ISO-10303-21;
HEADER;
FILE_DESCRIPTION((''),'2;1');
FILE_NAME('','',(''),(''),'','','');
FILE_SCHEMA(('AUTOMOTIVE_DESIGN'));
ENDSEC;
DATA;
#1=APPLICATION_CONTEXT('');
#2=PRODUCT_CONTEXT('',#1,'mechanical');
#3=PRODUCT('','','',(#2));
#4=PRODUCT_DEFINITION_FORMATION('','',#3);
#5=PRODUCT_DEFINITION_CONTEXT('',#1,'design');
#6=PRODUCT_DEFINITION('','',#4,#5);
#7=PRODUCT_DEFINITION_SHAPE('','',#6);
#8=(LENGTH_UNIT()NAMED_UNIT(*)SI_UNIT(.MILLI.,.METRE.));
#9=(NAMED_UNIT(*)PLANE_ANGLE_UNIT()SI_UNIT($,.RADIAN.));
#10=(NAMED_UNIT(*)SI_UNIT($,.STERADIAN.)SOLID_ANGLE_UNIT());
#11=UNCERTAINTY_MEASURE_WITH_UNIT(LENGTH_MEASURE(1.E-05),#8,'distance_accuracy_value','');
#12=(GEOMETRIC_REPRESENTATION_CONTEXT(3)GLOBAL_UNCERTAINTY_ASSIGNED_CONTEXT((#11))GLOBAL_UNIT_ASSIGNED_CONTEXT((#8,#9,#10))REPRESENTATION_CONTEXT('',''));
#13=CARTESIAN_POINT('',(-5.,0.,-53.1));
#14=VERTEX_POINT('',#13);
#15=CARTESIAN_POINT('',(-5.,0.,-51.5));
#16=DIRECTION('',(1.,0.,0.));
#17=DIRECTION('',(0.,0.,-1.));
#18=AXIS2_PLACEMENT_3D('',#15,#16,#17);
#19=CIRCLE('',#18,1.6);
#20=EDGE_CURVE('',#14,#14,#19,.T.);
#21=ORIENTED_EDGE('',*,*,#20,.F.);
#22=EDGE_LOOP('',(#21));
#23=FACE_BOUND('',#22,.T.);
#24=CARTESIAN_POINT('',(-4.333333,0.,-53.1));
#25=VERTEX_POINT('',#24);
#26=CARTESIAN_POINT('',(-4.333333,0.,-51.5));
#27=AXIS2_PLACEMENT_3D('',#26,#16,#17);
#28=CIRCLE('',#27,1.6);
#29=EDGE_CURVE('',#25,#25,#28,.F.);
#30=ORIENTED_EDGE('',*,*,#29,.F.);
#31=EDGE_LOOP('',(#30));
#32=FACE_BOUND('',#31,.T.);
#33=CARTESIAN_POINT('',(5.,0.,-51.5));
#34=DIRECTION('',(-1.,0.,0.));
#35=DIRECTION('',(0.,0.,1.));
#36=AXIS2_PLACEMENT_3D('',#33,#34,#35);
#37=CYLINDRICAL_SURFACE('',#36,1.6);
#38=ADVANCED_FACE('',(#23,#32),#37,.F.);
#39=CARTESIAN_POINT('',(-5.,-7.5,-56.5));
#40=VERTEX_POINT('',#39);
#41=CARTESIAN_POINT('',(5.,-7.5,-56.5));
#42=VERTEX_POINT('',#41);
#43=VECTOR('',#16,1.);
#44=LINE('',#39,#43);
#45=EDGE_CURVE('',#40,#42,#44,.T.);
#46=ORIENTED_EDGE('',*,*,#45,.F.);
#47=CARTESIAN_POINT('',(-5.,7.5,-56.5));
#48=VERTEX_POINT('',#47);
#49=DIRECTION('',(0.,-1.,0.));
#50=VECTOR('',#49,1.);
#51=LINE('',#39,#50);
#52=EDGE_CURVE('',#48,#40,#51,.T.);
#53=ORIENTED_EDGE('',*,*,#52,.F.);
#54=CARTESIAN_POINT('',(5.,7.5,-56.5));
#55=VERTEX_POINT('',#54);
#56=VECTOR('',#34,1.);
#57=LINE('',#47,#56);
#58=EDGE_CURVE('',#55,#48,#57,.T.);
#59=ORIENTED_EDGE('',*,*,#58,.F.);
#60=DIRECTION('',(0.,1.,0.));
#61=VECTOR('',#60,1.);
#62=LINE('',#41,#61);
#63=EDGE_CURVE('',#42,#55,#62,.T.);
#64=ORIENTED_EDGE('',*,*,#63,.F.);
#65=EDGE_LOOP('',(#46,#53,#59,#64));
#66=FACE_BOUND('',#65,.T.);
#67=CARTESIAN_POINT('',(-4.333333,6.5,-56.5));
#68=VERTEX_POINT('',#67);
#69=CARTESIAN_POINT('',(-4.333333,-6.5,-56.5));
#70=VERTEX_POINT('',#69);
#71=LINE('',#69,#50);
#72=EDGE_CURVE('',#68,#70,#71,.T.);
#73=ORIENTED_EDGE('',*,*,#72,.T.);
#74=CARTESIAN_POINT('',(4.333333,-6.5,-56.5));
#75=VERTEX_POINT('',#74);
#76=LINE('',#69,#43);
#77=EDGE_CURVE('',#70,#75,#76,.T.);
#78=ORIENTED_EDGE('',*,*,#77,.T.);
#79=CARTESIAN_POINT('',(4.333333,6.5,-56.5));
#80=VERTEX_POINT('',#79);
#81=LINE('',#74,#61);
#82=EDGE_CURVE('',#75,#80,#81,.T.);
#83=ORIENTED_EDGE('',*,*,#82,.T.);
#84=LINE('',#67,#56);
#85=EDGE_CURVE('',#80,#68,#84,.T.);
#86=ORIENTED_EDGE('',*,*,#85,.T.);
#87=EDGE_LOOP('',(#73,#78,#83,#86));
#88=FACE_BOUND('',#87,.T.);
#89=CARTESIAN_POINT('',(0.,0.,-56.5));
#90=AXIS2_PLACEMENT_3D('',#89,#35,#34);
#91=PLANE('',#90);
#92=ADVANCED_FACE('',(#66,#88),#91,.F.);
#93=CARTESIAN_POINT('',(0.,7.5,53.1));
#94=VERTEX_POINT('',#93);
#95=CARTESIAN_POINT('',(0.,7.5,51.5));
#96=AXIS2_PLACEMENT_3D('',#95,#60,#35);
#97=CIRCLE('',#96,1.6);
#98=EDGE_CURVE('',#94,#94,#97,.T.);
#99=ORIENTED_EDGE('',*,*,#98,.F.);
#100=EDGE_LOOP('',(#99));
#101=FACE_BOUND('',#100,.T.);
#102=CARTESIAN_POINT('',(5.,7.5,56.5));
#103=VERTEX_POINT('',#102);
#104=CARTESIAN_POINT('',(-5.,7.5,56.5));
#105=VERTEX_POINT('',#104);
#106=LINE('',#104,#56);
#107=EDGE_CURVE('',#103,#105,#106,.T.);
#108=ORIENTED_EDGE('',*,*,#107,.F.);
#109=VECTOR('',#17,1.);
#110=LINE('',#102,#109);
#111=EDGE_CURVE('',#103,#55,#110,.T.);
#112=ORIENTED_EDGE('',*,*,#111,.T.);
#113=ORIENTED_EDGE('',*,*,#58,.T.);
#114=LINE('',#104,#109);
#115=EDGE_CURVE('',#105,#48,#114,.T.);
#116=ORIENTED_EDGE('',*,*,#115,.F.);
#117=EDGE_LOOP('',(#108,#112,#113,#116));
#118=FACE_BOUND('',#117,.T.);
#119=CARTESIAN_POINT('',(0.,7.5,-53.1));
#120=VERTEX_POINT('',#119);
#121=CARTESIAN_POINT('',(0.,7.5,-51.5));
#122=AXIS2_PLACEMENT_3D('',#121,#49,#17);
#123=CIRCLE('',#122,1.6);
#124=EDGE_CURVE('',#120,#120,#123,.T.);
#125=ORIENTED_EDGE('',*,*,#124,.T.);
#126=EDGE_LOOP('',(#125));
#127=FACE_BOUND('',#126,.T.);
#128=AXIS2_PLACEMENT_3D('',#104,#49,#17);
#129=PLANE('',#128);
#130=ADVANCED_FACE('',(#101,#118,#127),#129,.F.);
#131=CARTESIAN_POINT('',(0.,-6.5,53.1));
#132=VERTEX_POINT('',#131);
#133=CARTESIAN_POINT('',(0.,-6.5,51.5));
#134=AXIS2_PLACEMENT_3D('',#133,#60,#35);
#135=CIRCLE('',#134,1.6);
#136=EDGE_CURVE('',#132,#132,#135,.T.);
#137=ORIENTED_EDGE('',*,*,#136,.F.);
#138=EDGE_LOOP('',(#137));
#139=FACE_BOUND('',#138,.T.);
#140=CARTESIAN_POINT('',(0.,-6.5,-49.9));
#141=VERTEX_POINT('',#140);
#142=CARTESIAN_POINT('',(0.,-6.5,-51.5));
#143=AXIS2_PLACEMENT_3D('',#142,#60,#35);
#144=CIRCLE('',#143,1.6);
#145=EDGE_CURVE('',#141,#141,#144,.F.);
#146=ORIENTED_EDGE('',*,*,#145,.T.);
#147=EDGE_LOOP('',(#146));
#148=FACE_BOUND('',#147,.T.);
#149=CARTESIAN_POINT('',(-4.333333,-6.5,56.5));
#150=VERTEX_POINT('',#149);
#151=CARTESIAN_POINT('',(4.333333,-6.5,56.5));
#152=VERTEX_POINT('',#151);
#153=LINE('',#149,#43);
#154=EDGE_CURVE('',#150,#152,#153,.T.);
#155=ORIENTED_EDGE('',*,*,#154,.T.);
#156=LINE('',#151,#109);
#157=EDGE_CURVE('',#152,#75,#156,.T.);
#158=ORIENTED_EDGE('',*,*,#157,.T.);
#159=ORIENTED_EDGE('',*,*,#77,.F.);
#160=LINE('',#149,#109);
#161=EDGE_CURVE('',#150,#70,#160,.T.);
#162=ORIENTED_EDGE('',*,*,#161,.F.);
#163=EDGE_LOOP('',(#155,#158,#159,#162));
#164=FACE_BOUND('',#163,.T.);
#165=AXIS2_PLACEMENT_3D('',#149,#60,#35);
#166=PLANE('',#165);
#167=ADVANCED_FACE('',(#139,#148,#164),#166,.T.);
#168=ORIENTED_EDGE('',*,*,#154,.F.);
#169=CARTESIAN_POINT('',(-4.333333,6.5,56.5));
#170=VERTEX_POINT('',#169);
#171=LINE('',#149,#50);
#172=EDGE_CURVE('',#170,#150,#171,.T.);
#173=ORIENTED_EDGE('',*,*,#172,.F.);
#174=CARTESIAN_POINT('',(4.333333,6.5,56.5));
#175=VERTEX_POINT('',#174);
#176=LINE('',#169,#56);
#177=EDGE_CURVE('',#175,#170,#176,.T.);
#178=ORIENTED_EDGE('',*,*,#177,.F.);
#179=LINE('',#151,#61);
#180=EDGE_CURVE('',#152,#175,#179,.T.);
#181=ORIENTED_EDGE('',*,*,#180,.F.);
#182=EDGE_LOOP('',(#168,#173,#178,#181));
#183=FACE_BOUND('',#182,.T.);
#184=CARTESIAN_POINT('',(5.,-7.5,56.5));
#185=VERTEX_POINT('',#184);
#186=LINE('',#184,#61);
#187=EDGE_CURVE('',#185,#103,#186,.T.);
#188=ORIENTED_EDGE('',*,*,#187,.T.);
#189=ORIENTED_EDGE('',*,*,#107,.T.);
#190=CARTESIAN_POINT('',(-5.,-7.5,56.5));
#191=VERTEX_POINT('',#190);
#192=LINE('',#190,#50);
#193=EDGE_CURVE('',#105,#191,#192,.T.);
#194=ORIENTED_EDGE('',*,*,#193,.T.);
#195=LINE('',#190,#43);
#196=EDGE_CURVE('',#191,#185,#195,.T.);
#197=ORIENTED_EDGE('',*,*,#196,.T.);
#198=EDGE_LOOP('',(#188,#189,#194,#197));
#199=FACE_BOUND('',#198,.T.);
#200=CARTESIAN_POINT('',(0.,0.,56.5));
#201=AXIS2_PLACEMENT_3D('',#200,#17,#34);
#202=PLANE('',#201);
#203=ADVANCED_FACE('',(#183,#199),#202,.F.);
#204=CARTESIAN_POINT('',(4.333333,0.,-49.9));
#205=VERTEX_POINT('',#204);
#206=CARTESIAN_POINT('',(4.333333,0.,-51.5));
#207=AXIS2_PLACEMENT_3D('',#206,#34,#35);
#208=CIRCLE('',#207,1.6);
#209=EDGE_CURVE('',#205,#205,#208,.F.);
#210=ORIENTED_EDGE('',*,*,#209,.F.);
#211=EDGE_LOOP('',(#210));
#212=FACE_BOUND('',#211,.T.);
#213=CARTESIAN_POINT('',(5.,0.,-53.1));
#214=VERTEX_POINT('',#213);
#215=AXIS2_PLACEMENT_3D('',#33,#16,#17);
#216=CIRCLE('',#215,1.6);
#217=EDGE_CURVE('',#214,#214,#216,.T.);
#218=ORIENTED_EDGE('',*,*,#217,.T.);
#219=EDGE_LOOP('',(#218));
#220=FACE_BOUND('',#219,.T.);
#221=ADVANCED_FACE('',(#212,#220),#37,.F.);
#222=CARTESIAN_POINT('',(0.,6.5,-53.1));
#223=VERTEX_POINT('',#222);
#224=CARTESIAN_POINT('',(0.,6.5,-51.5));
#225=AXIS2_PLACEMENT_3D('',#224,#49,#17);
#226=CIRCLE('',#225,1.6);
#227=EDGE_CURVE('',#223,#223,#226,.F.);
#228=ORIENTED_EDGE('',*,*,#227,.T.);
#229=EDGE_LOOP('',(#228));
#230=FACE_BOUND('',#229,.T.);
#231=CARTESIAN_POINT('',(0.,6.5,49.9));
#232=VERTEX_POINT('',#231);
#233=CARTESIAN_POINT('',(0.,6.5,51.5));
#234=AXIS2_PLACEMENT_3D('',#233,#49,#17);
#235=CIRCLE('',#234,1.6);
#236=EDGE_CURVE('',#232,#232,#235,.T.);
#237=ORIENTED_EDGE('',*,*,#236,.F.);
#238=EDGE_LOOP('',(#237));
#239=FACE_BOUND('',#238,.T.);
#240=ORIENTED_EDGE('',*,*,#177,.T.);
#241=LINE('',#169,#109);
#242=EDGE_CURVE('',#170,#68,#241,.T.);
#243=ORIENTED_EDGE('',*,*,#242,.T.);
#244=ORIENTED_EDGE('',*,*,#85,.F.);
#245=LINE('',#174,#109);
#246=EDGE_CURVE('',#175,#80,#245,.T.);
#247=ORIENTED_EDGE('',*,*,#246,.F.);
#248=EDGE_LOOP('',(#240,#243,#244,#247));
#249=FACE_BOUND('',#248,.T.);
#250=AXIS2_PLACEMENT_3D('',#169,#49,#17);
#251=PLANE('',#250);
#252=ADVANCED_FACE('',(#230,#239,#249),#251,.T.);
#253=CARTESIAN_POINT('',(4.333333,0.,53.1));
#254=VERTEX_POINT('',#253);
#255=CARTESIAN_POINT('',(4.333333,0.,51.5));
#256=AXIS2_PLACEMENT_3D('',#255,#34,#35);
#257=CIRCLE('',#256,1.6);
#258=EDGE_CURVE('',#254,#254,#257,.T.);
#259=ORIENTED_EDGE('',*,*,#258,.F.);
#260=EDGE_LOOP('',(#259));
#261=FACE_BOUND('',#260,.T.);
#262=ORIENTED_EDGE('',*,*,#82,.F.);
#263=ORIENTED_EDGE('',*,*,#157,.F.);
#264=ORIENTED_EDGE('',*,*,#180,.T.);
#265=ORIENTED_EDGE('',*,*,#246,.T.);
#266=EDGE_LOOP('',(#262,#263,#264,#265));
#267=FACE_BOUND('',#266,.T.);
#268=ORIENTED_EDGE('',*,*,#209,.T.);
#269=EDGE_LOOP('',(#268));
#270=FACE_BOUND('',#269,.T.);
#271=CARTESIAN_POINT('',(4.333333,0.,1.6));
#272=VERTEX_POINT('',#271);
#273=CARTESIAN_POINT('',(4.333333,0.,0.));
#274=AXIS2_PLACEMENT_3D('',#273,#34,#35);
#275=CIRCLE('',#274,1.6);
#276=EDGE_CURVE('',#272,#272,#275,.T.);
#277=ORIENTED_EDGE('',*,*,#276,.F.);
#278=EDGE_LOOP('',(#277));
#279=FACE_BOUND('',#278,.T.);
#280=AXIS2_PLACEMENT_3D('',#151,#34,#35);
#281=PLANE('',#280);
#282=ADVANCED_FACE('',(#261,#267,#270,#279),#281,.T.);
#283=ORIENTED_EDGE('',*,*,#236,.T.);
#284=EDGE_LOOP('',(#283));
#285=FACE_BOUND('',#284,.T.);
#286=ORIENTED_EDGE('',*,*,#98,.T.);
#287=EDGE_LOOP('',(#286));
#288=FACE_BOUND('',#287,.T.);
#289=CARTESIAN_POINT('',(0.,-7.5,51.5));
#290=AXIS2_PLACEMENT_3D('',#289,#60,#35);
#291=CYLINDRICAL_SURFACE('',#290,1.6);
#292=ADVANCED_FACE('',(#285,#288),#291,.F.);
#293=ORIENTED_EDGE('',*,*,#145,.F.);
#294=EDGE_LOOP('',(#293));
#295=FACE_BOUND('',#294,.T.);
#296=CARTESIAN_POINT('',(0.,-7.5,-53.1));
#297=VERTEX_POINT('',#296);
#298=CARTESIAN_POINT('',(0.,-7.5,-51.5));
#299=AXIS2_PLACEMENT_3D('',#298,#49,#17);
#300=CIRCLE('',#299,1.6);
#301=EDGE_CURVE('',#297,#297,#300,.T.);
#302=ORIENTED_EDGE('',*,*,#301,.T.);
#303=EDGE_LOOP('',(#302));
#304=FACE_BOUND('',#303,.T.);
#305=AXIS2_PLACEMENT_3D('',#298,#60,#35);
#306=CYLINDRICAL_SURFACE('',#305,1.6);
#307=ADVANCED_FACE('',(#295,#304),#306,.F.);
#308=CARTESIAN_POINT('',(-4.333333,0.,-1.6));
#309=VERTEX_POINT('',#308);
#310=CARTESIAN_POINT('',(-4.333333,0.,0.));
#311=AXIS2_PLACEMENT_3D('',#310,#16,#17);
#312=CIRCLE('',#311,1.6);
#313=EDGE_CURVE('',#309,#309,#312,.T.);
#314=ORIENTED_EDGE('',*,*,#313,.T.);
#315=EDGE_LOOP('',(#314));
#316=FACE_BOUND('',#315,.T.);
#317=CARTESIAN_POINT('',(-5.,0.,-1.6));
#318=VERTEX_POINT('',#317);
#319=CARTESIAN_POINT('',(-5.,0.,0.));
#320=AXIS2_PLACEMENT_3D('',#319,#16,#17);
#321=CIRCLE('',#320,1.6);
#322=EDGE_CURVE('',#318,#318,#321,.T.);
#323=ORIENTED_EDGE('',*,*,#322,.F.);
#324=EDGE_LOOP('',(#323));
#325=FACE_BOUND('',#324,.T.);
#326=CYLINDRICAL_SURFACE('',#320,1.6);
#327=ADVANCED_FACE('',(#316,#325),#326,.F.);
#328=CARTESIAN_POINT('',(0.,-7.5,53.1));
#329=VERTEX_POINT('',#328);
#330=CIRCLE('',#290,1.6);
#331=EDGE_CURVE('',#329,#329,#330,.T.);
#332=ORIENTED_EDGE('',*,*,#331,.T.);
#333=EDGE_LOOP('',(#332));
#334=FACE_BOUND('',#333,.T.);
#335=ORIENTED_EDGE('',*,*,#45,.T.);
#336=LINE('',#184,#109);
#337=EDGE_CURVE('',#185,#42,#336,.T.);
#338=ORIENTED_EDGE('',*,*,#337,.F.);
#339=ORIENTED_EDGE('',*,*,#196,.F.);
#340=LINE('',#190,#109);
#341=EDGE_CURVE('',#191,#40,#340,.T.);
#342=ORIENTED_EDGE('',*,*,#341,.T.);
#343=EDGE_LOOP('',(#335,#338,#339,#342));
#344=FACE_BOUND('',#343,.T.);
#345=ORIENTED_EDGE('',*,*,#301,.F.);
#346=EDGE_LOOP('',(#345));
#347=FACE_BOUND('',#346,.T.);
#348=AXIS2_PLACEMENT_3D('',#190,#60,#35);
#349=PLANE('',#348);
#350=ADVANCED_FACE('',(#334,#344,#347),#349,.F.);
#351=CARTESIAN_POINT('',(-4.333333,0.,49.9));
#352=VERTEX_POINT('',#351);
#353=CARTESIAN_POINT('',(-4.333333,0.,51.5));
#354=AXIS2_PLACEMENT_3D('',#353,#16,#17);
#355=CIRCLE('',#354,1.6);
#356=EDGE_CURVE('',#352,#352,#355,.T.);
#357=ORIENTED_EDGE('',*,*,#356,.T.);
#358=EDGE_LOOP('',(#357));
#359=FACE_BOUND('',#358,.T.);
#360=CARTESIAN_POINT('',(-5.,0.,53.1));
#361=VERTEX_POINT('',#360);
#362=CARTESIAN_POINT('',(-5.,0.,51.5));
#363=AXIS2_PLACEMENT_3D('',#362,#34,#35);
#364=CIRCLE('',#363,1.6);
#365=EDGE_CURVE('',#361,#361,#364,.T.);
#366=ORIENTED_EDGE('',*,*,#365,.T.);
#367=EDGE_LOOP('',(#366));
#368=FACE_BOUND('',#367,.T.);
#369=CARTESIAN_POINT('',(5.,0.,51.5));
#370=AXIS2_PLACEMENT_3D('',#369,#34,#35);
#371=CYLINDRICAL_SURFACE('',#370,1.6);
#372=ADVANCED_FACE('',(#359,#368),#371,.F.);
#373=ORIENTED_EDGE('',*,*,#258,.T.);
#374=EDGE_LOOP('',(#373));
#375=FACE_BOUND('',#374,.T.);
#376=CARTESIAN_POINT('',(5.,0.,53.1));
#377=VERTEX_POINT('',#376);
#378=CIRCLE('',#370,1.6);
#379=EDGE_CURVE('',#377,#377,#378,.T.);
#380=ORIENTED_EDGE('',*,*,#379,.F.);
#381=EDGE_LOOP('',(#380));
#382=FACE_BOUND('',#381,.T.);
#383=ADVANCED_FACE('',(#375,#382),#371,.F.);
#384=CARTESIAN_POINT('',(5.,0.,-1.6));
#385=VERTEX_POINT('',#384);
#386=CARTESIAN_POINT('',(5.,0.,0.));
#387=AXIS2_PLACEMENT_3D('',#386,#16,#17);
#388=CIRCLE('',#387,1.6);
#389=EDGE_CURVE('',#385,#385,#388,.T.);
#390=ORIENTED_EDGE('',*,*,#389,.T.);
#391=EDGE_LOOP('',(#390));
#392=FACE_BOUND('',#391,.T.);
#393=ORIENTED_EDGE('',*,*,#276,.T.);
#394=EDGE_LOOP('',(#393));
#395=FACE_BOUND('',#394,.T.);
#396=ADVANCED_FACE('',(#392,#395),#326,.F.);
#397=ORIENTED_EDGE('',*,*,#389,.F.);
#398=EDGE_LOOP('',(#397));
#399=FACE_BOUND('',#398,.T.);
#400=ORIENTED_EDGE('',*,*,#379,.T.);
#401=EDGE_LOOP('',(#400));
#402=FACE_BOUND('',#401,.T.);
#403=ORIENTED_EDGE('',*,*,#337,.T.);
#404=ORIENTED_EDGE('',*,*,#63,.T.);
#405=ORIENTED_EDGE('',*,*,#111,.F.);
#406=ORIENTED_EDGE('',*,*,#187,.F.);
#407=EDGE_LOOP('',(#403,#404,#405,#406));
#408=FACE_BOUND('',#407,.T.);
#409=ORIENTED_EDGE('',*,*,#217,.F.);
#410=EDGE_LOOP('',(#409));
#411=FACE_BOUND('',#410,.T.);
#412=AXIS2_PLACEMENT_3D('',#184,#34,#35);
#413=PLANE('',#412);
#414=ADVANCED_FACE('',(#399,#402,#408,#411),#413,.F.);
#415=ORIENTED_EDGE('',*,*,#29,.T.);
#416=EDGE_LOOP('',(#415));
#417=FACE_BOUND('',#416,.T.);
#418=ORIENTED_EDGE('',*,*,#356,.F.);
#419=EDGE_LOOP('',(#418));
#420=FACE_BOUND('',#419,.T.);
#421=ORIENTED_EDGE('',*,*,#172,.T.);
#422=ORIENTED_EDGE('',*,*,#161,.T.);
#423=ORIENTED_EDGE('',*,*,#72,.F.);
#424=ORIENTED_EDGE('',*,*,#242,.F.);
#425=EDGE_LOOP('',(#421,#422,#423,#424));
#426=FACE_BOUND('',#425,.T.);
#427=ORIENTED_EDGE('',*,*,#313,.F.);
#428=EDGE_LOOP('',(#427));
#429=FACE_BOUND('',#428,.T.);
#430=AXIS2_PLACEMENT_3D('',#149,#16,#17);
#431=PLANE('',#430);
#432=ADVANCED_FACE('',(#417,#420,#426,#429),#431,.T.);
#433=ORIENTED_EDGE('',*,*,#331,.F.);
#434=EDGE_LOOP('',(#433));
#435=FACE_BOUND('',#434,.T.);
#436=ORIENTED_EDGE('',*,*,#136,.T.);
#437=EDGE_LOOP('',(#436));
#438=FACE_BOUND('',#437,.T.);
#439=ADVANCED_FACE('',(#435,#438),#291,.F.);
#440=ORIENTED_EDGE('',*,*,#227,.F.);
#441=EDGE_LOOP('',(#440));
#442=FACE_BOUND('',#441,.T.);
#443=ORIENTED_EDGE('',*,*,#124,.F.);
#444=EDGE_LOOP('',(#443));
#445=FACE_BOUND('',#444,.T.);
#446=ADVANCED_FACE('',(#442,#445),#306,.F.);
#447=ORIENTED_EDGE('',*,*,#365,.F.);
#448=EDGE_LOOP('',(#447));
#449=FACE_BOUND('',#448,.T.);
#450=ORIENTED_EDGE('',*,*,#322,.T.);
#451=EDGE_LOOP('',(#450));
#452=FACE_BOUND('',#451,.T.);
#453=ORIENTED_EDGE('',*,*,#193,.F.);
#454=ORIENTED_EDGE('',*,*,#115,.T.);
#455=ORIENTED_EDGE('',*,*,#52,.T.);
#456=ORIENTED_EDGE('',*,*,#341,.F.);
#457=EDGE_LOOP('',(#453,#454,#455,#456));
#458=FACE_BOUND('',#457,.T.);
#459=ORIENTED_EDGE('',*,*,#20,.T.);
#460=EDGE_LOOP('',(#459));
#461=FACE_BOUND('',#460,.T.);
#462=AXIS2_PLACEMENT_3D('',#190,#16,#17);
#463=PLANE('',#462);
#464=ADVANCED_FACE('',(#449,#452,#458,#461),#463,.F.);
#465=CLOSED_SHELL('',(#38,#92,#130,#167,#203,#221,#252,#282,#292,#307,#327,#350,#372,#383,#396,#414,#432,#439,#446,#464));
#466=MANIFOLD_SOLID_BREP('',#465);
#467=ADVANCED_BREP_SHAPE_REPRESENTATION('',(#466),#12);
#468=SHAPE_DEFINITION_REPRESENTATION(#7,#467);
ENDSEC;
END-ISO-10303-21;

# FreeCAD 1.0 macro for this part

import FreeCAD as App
import Part
import Sketcher
Q = App.Units.Quantity

doc = App.newDocument("Part")
body = doc.addObject("PartDesign::Body", "Body")

# Sketch on XY plane
sketch1 = body.newObject("Sketcher::SketchObject", "Sketch")
sketch1.AttachmentSupport = (doc.getObject("XY_Plane"), [""])
sketch1.MapMode = "FlatFace"
sketch1.addGeometry(Part.LineSegment(App.Vector(-5, 8, 0), App.Vector(-5, -8, 0)), False)
sketch1.addGeometry(Part.LineSegment(App.Vector(-5, -8, 0), App.Vector(5, -8, 0)), False)
sketch1.addGeometry(Part.LineSegment(App.Vector(5, -8, 0), App.Vector(5, 8, 0)), False)
sketch1.addGeometry(Part.LineSegment(App.Vector(5, 8, 0), App.Vector(-5, 8, 0)), False)
sketch1.addGeometry(Part.LineSegment(App.Vector(4, -6, 0), App.Vector(-4, -6, 0)), False)
sketch1.addGeometry(Part.LineSegment(App.Vector(-4, -6, 0), App.Vector(-4, 6, 0)), False)
sketch1.addGeometry(Part.LineSegment(App.Vector(-4, 6, 0), App.Vector(4, 6, 0)), False)
sketch1.addGeometry(Part.LineSegment(App.Vector(4, 6, 0), App.Vector(4, -6, 0)), False)
sketch1.addConstraint(Sketcher.Constraint("Coincident", 0, 2, 1, 1))
sketch1.addConstraint(Sketcher.Constraint("Coincident", 1, 2, 2, 1))
sketch1.addConstraint(Sketcher.Constraint("Coincident", 2, 2, 3, 1))
sketch1.addConstraint(Sketcher.Constraint("Coincident", 3, 2, 0, 1))
sketch1.addConstraint(Sketcher.Constraint("Coincident", 4, 2, 5, 1))
sketch1.addConstraint(Sketcher.Constraint("Coincident", 5, 2, 6, 1))
sketch1.addConstraint(Sketcher.Constraint("Coincident", 6, 2, 7, 1))
sketch1.addConstraint(Sketcher.Constraint("Coincident", 7, 2, 4, 1))
sketch1.addConstraint(Sketcher.Constraint("Vertical", 0))
sketch1.addConstraint(Sketcher.Constraint("Horizontal", 1))
sketch1.addConstraint(Sketcher.Constraint("Vertical", 2))
sketch1.addConstraint(Sketcher.Constraint("Horizontal", 3))
sketch1.addConstraint(Sketcher.Constraint("Horizontal", 4))
sketch1.addConstraint(Sketcher.Constraint("Vertical", 5))
sketch1.addConstraint(Sketcher.Constraint("Horizontal", 6))
sketch1.addConstraint(Sketcher.Constraint("Vertical", 7))
sketch1.addConstraint(Sketcher.Constraint("Symmetric", 0, 2, 2, 2, -1, 1))
sketch1.addConstraint(Sketcher.Constraint("Symmetric", 4, 2, 6, 2, -1, 1))
sketch1.addConstraint(Sketcher.Constraint("DistanceX", 1, 1, 1, 2, Q("10 mm")))
sketch1.addConstraint(Sketcher.Constraint("DistanceY", 0, 2, 0, 1, Q("15 mm")))
sketch1.addConstraint(Sketcher.Constraint("DistanceY", 5, 1, 5, 2, Q("13 mm")))
sketch1.addConstraint(Sketcher.Constraint("DistanceX", 4, 2, 4, 1, Q("8.666667 mm")))
pad1 = body.newObject("PartDesign::Pad", "Pad")
pad1.Profile = sketch1
pad1.Length = 56.5

# Sketch on YZ plane
sketch2 = body.newObject("Sketcher::SketchObject", "Sketch001")
sketch2.AttachmentSupport = (doc.getObject("YZ_Plane"), [""])
sketch2.MapMode = "FlatFace"
sketch2.AttachmentOffset = App.Placement(App.Vector(0, 0, 5), App.Rotation())
sketch2.addGeometry(Part.Circle(App.Vector(0, 0, 0), App.Vector(0, 0, 1), 1.6), False)
sketch2.addConstraint(Sketcher.Constraint("Coincident", 0, 3, -1, 1))
sketch2.addConstraint(Sketcher.Constraint("Diameter", 0, Q("3.2 mm")))
pocket1 = body.newObject("PartDesign::Pocket", "Pocket")
pocket1.Profile = sketch2
pocket1.Type = "ThroughAll"

# Sketch on XZ plane
sketch3 = body.newObject("Sketcher::SketchObject", "Sketch002")
sketch3.AttachmentSupport = (doc.getObject("XZ_Plane"), [""])
sketch3.MapMode = "FlatFace"
sketch3.AttachmentOffset = App.Placement(App.Vector(0, 0, -7.5), App.Rotation())
sketch3.addGeometry(Part.Circle(App.Vector(0, 51.5, 0), App.Vector(0, 0, 1), 1.6), False)
sketch3.addConstraint(Sketcher.Constraint("PointOnObject", 0, 3, -2))
sketch3.addConstraint(Sketcher.Constraint("Diameter", 0, Q("3.2 mm")))
sketch3.addConstraint(Sketcher.Constraint("DistanceY", -1, 1, 0, 3, Q("51.5 mm")))
pocket2 = body.newObject("PartDesign::Pocket", "Pocket001")
pocket2.Profile = sketch3
pocket2.Type = "ThroughAll"
pocket2.Reversed = True

# Sketch on YZ plane
sketch4 = body.newObject("Sketcher::SketchObject", "Sketch003")
sketch4.AttachmentSupport = (doc.getObject("YZ_Plane"), [""])
sketch4.MapMode = "FlatFace"
sketch4.AttachmentOffset = App.Placement(App.Vector(0, 0, -5), App.Rotation())
sketch4.addGeometry(Part.Circle(App.Vector(0, 51.5, 0), App.Vector(0, 0, 1), 1.6), False)
sketch4.addConstraint(Sketcher.Constraint("PointOnObject", 0, 3, -2))
sketch4.addConstraint(Sketcher.Constraint("Diameter", 0, Q("3.2 mm")))
sketch4.addConstraint(Sketcher.Constraint("DistanceY", -1, 1, 0, 3, Q("51.5 mm")))
pocket3 = body.newObject("PartDesign::Pocket", "Pocket002")
pocket3.Profile = sketch4
pocket3.Type = "ThroughAll"
pocket3.Reversed = True
doc.recompute()

mirrored = body.newObject("PartDesign::Mirrored", "Mirrored")
mirrored.Originals = [pad1, pocket1, pocket2, pocket3]
mirrored.MirrorPlane = (doc.getObject("XY_Plane"), [""])
body.Tip = mirrored

doc.recompute()
